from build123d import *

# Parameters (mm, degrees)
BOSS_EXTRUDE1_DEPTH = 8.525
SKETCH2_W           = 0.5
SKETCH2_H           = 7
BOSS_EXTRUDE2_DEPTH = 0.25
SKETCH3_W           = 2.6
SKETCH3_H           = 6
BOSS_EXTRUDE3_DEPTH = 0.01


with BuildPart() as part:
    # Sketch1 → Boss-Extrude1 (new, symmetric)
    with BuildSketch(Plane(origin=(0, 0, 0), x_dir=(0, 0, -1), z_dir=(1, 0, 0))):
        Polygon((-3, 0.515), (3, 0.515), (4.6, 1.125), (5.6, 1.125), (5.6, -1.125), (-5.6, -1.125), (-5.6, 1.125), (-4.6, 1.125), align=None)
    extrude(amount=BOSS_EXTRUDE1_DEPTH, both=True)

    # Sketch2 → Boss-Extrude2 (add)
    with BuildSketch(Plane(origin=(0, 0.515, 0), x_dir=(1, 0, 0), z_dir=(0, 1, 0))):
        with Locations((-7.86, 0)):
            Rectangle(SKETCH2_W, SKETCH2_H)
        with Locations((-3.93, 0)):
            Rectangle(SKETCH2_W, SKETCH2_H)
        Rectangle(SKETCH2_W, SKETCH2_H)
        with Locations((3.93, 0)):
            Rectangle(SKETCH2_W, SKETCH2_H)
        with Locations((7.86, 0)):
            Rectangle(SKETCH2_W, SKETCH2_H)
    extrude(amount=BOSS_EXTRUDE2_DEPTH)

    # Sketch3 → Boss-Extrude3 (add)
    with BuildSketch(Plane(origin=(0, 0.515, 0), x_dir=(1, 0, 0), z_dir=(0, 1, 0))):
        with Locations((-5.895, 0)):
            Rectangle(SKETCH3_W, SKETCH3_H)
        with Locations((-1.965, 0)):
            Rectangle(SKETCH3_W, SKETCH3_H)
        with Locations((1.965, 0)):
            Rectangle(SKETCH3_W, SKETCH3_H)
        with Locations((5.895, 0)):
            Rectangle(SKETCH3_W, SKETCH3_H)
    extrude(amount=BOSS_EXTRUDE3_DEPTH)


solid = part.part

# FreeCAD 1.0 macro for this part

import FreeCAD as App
import Part
import Sketcher
from FreeCAD import Vector
Q = App.Units.Quantity

doc = App.newDocument("Part")
body = doc.addObject("PartDesign::Body", "Body")

# Sketch on YZ plane
sketch1 = body.newObject("Sketcher::SketchObject", "Sketch")
sketch1.AttachmentSupport = (doc.getObject("YZ_Plane"), [""])
sketch1.MapMode = "FlatFace"
sketch1.addGeometry([
    Part.LineSegment(Vector(0.5, -3, 0), Vector(0.5, 3, 0)),  # 0
    Part.LineSegment(Vector(0.5, 3, 0), Vector(1.1, 4.6, 0)),  # 1
    Part.LineSegment(Vector(1.1, 4.6, 0), Vector(1.1, 5.6, 0)),  # 2
    Part.LineSegment(Vector(1.1, 5.6, 0), Vector(-1.1, 5.6, 0)),  # 3
    Part.LineSegment(Vector(-1.1, 5.6, 0), Vector(-1.1, -5.6, 0)),  # 4
    Part.LineSegment(Vector(-1.1, -5.6, 0), Vector(1.1, -5.6, 0)),  # 5
    Part.LineSegment(Vector(1.1, -5.6, 0), Vector(1.1, -4.6, 0)),  # 6
    Part.LineSegment(Vector(1.1, -4.6, 0), Vector(0.5, -3, 0)),  # 7
], False)
sketch1.addConstraint([
    Sketcher.Constraint("Coincident", 0, 2, 1, 1),
    Sketcher.Constraint("Coincident", 1, 2, 2, 1),
    Sketcher.Constraint("Coincident", 2, 2, 3, 1),
    Sketcher.Constraint("Coincident", 3, 2, 4, 1),
    Sketcher.Constraint("Coincident", 4, 2, 5, 1),
    Sketcher.Constraint("Coincident", 5, 2, 6, 1),
    Sketcher.Constraint("Coincident", 6, 2, 7, 1),
    Sketcher.Constraint("Coincident", 7, 2, 0, 1),
    Sketcher.Constraint("Vertical", 0),
    Sketcher.Constraint("Vertical", 2),
    Sketcher.Constraint("Horizontal", 3),
    Sketcher.Constraint("Vertical", 4),
    Sketcher.Constraint("Horizontal", 5),
    Sketcher.Constraint("Vertical", 6),
    Sketcher.Constraint("Symmetric", 2, 2, 4, 2, -1, 1),
    Sketcher.Constraint("Symmetric", 1, 2, 6, 2, -1),
    Sketcher.Constraint("Equal", 1, 7),
    Sketcher.Constraint("DistanceY", 0, 1, 0, 2, Q("6 mm")),
    Sketcher.Constraint("DistanceY", 2, 1, 2, 2, Q("1 mm")),
    Sketcher.Constraint("DistanceY", 4, 2, 4, 1, Q("11.2 mm")),
    Sketcher.Constraint("DistanceX", 3, 2, 3, 1, Q("2.25 mm")),
    Sketcher.Constraint("DistanceX", 0, 2, 1, 2, Q("0.61 mm")),
])
pad1 = body.newObject("PartDesign::Pad", "Pad")
pad1.Profile = sketch1
pad1.Length = 17.05
pad1.Midplane = True

# Sketch on XZ plane
sketch2 = body.newObject("Sketcher::SketchObject", "Sketch001")
sketch2.AttachmentSupport = (doc.getObject("XZ_Plane"), [""])
sketch2.MapMode = "FlatFace"
sketch2.AttachmentOffset = App.Placement(Vector(0, 0, -0.515), App.Rotation())
sketch2.addGeometry([
    Part.LineSegment(Vector(-8.11, -3.5, 0), Vector(-8.11, 3.5, 0)),  # 0
    Part.LineSegment(Vector(-8.11, 3.5, 0), Vector(-7.61, 3.5, 0)),  # 1
    Part.LineSegment(Vector(-7.61, 3.5, 0), Vector(-7.61, -3.5, 0)),  # 2
    Part.LineSegment(Vector(-7.61, -3.5, 0), Vector(-8.11, -3.5, 0)),  # 3
    Part.LineSegment(Vector(-4.18, -3.5, 0), Vector(-4.18, 3.5, 0)),  # 4
    Part.LineSegment(Vector(-4.18, 3.5, 0), Vector(-3.68, 3.5, 0)),  # 5
    Part.LineSegment(Vector(-3.68, 3.5, 0), Vector(-3.68, -3.5, 0)),  # 6
    Part.LineSegment(Vector(-3.68, -3.5, 0), Vector(-4.18, -3.5, 0)),  # 7
    Part.LineSegment(Vector(-0.25, -3.5, 0), Vector(-0.25, 3.5, 0)),  # 8
    Part.LineSegment(Vector(-0.25, 3.5, 0), Vector(0.25, 3.5, 0)),  # 9
    Part.LineSegment(Vector(0.25, 3.5, 0), Vector(0.25, -3.5, 0)),  # 10
    Part.LineSegment(Vector(0.25, -3.5, 0), Vector(-0.25, -3.5, 0)),  # 11
    Part.LineSegment(Vector(3.68, -3.5, 0), Vector(3.68, 3.5, 0)),  # 12
    Part.LineSegment(Vector(3.68, 3.5, 0), Vector(4.18, 3.5, 0)),  # 13
    Part.LineSegment(Vector(4.18, 3.5, 0), Vector(4.18, -3.5, 0)),  # 14
    Part.LineSegment(Vector(4.18, -3.5, 0), Vector(3.68, -3.5, 0)),  # 15
    Part.LineSegment(Vector(7.61, -3.5, 0), Vector(7.61, 3.5, 0)),  # 16
    Part.LineSegment(Vector(7.61, 3.5, 0), Vector(8.11, 3.5, 0)),  # 17
    Part.LineSegment(Vector(8.11, 3.5, 0), Vector(8.11, -3.5, 0)),  # 18
    Part.LineSegment(Vector(8.11, -3.5, 0), Vector(7.61, -3.5, 0)),  # 19
], False)
sketch2.addConstraint([
    Sketcher.Constraint("Coincident", 0, 2, 1, 1),
    Sketcher.Constraint("Coincident", 1, 2, 2, 1),
    Sketcher.Constraint("Coincident", 2, 2, 3, 1),
    Sketcher.Constraint("Coincident", 3, 2, 0, 1),
    Sketcher.Constraint("Coincident", 4, 2, 5, 1),
    Sketcher.Constraint("Coincident", 5, 2, 6, 1),
    Sketcher.Constraint("Coincident", 6, 2, 7, 1),
    Sketcher.Constraint("Coincident", 7, 2, 4, 1),
    Sketcher.Constraint("Coincident", 8, 2, 9, 1),
    Sketcher.Constraint("Coincident", 9, 2, 10, 1),
    Sketcher.Constraint("Coincident", 10, 2, 11, 1),
    Sketcher.Constraint("Coincident", 11, 2, 8, 1),
    Sketcher.Constraint("Coincident", 12, 2, 13, 1),
    Sketcher.Constraint("Coincident", 13, 2, 14, 1),
    Sketcher.Constraint("Coincident", 14, 2, 15, 1),
    Sketcher.Constraint("Coincident", 15, 2, 12, 1),
    Sketcher.Constraint("Coincident", 16, 2, 17, 1),
    Sketcher.Constraint("Coincident", 17, 2, 18, 1),
    Sketcher.Constraint("Coincident", 18, 2, 19, 1),
    Sketcher.Constraint("Coincident", 19, 2, 16, 1),
    Sketcher.Constraint("Vertical", 0),
    Sketcher.Constraint("Horizontal", 1),
    Sketcher.Constraint("Vertical", 2),
    Sketcher.Constraint("Horizontal", 3),
    Sketcher.Constraint("Vertical", 4),
    Sketcher.Constraint("Horizontal", 5),
    Sketcher.Constraint("Vertical", 6),
    Sketcher.Constraint("Horizontal", 7),
    Sketcher.Constraint("Vertical", 8),
    Sketcher.Constraint("Horizontal", 9),
    Sketcher.Constraint("Vertical", 10),
    Sketcher.Constraint("Horizontal", 11),
    Sketcher.Constraint("Vertical", 12),
    Sketcher.Constraint("Horizontal", 13),
    Sketcher.Constraint("Vertical", 14),
    Sketcher.Constraint("Horizontal", 15),
    Sketcher.Constraint("Vertical", 16),
    Sketcher.Constraint("Horizontal", 17),
    Sketcher.Constraint("Vertical", 18),
    Sketcher.Constraint("Horizontal", 19),
    Sketcher.Constraint("Symmetric", 8, 2, 10, 2, -1, 1),
    Sketcher.Constraint("Symmetric", 6, 2, 12, 2, -1, 1),
    Sketcher.Constraint("Symmetric", 4, 2, 14, 2, -1, 1),
    Sketcher.Constraint("Symmetric", 2, 2, 16, 2, -1, 1),
    Sketcher.Constraint("Symmetric", 0, 2, 18, 2, -1, 1),
    Sketcher.Constraint("Horizontal", 1, 2, 4, 2),
    Sketcher.Constraint("Horizontal", 3, 2, 6, 2),
    Sketcher.Constraint("Horizontal", 5, 2, 8, 2),
    Sketcher.Constraint("Horizontal", 7, 2, 10, 2),
    Sketcher.Constraint("Equal", 3, 5),
    Sketcher.Constraint("Equal", 7, 9),
    Sketcher.Constraint("DistanceY", 0, 1, 0, 2, Q("7 mm")),
    Sketcher.Constraint("DistanceX", 1, 1, 1, 2, Q("0.5 mm")),
    Sketcher.Constraint("DistanceX", 0, 2, -1, 1, Q("8.11 mm")),
    Sketcher.Constraint("DistanceX", 4, 2, -1, 1, Q("4.18 mm")),
])
pad2 = body.newObject("PartDesign::Pad", "Pad001")
pad2.Profile = sketch2
pad2.Length = 0.25
pad2.Reversed = True

# Sketch on XZ plane
sketch3 = body.newObject("Sketcher::SketchObject", "Sketch002")
sketch3.AttachmentSupport = (doc.getObject("XZ_Plane"), [""])
sketch3.MapMode = "FlatFace"
sketch3.AttachmentOffset = App.Placement(Vector(0, 0, -0.515), App.Rotation())
sketch3.addGeometry([
    Part.LineSegment(Vector(-7.2, -3, 0), Vector(-7.2, 3, 0)),  # 0
    Part.LineSegment(Vector(-7.2, 3, 0), Vector(-4.6, 3, 0)),  # 1
    Part.LineSegment(Vector(-4.6, 3, 0), Vector(-4.6, -3, 0)),  # 2
    Part.LineSegment(Vector(-4.6, -3, 0), Vector(-7.2, -3, 0)),  # 3
    Part.LineSegment(Vector(-3.3, -3, 0), Vector(-3.3, 3, 0)),  # 4
    Part.LineSegment(Vector(-3.3, 3, 0), Vector(-0.7, 3, 0)),  # 5
    Part.LineSegment(Vector(-0.7, 3, 0), Vector(-0.7, -3, 0)),  # 6
    Part.LineSegment(Vector(-0.7, -3, 0), Vector(-3.3, -3, 0)),  # 7
    Part.LineSegment(Vector(0.7, -3, 0), Vector(0.7, 3, 0)),  # 8
    Part.LineSegment(Vector(0.7, 3, 0), Vector(3.3, 3, 0)),  # 9
    Part.LineSegment(Vector(3.3, 3, 0), Vector(3.3, -3, 0)),  # 10
    Part.LineSegment(Vector(3.3, -3, 0), Vector(0.7, -3, 0)),  # 11
    Part.LineSegment(Vector(4.6, -3, 0), Vector(4.6, 3, 0)),  # 12
    Part.LineSegment(Vector(4.6, 3, 0), Vector(7.2, 3, 0)),  # 13
    Part.LineSegment(Vector(7.2, 3, 0), Vector(7.2, -3, 0)),  # 14
    Part.LineSegment(Vector(7.2, -3, 0), Vector(4.6, -3, 0)),  # 15
], False)
sketch3.addConstraint([
    Sketcher.Constraint("Coincident", 0, 2, 1, 1),
    Sketcher.Constraint("Coincident", 1, 2, 2, 1),
    Sketcher.Constraint("Coincident", 2, 2, 3, 1),
    Sketcher.Constraint("Coincident", 3, 2, 0, 1),
    Sketcher.Constraint("Coincident", 4, 2, 5, 1),
    Sketcher.Constraint("Coincident", 5, 2, 6, 1),
    Sketcher.Constraint("Coincident", 6, 2, 7, 1),
    Sketcher.Constraint("Coincident", 7, 2, 4, 1),
    Sketcher.Constraint("Coincident", 8, 2, 9, 1),
    Sketcher.Constraint("Coincident", 9, 2, 10, 1),
    Sketcher.Constraint("Coincident", 10, 2, 11, 1),
    Sketcher.Constraint("Coincident", 11, 2, 8, 1),
    Sketcher.Constraint("Coincident", 12, 2, 13, 1),
    Sketcher.Constraint("Coincident", 13, 2, 14, 1),
    Sketcher.Constraint("Coincident", 14, 2, 15, 1),
    Sketcher.Constraint("Coincident", 15, 2, 12, 1),
    Sketcher.Constraint("Vertical", 0),
    Sketcher.Constraint("Horizontal", 1),
    Sketcher.Constraint("Vertical", 2),
    Sketcher.Constraint("Horizontal", 3),
    Sketcher.Constraint("Vertical", 4),
    Sketcher.Constraint("Horizontal", 5),
    Sketcher.Constraint("Vertical", 6),
    Sketcher.Constraint("Horizontal", 7),
    Sketcher.Constraint("Vertical", 8),
    Sketcher.Constraint("Horizontal", 9),
    Sketcher.Constraint("Vertical", 10),
    Sketcher.Constraint("Horizontal", 11),
    Sketcher.Constraint("Vertical", 12),
    Sketcher.Constraint("Horizontal", 13),
    Sketcher.Constraint("Vertical", 14),
    Sketcher.Constraint("Horizontal", 15),
    Sketcher.Constraint("Symmetric", 6, 2, 8, 2, -1, 1),
    Sketcher.Constraint("Symmetric", 4, 2, 10, 2, -1, 1),
    Sketcher.Constraint("Symmetric", 2, 2, 12, 2, -1, 1),
    Sketcher.Constraint("Symmetric", 0, 2, 14, 2, -1, 1),
    Sketcher.Constraint("Horizontal", 1, 2, 4, 2),
    Sketcher.Constraint("Horizontal", 3, 2, 6, 2),
    Sketcher.Constraint("Horizontal", 5, 2, 8, 2),
    Sketcher.Constraint("Equal", 3, 5),
    Sketcher.Constraint("DistanceY", 0, 1, 0, 2, Q("6 mm")),
    Sketcher.Constraint("DistanceX", 1, 1, 1, 2, Q("2.6 mm")),
    Sketcher.Constraint("DistanceX", 1, 2, 4, 2, Q("1.33 mm")),
    Sketcher.Constraint("DistanceX", 5, 2, 8, 2, Q("1.33 mm")),
])
pad3 = body.newObject("PartDesign::Pad", "Pad002")
pad3.Profile = sketch3
pad3.Length = 0.01
pad3.Reversed = True

doc.recompute()
